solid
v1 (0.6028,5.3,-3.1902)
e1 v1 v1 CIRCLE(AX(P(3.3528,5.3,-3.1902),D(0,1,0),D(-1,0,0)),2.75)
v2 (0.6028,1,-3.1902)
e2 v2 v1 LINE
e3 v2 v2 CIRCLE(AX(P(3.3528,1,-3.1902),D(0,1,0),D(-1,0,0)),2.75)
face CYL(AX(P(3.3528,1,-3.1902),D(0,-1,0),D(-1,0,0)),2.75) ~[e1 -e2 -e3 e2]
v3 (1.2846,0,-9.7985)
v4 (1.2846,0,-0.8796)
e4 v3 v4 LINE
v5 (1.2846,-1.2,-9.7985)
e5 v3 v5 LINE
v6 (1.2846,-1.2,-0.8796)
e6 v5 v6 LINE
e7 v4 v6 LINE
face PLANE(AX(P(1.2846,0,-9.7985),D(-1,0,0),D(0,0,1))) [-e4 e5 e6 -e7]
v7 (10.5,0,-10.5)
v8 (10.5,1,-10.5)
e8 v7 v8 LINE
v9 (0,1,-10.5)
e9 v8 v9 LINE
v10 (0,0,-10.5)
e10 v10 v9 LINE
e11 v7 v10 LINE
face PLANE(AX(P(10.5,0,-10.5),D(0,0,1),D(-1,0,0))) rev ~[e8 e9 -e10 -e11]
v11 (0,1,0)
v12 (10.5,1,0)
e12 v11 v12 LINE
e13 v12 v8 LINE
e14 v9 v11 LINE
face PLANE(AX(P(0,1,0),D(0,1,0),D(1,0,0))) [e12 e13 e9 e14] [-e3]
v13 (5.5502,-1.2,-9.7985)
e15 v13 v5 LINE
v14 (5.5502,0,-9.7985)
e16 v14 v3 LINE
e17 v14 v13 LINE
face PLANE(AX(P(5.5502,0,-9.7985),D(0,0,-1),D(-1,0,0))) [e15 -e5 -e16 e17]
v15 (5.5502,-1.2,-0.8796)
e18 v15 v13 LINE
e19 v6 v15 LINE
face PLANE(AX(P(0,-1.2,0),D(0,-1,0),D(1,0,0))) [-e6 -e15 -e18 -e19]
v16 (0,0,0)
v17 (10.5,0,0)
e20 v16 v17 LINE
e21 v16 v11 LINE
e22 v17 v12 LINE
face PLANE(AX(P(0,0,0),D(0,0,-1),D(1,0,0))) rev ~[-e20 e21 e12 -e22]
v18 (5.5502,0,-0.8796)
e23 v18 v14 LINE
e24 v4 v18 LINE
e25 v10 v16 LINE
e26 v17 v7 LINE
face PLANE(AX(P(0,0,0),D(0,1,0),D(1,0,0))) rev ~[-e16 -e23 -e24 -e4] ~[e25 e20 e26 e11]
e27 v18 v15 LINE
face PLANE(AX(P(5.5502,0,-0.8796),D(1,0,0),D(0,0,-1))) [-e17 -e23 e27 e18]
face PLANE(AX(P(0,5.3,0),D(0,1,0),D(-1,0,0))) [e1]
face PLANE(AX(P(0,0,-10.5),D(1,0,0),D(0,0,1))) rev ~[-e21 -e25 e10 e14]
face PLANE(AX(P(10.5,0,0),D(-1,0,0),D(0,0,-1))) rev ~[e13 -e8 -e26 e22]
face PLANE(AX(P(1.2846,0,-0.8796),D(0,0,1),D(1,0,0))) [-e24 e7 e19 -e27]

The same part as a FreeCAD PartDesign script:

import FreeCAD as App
import Part
import Sketcher

V = App.Vector

doc = App.newDocument("Part")
body = doc.addObject("PartDesign::Body", "Body")

# Sketch on XZ plane
sketch1 = body.newObject("Sketcher::SketchObject", "Sketch")
sketch1.AttachmentSupport = (doc.getObject("XZ_Plane"), [""])
sketch1.MapMode = "FlatFace"
sketch1.addGeometry(Part.LineSegment(V(0, -10, 0), V(0, 0, 0)), False)
sketch1.addGeometry(Part.LineSegment(V(0, 0, 0), V(10, 0, 0)), False)
sketch1.addGeometry(Part.LineSegment(V(10, 0, 0), V(10, -10, 0)), False)
sketch1.addGeometry(Part.LineSegment(V(10, -10, 0), V(0, -10, 0)), False)
sketch1.addConstraint(Sketcher.Constraint("Coincident", 0, 2, 1, 1))
sketch1.addConstraint(Sketcher.Constraint("Coincident", 1, 2, 2, 1))
sketch1.addConstraint(Sketcher.Constraint("Coincident", 2, 2, 3, 1))
sketch1.addConstraint(Sketcher.Constraint("Coincident", 3, 2, 0, 1))
sketch1.addConstraint(Sketcher.Constraint("Vertical", 0))
sketch1.addConstraint(Sketcher.Constraint("Horizontal", 1))
sketch1.addConstraint(Sketcher.Constraint("Vertical", 2))
sketch1.addConstraint(Sketcher.Constraint("Horizontal", 3))
sketch1.addConstraint(Sketcher.Constraint("Coincident", 0, 2, -1, 1))
sketch1.addConstraint(Sketcher.Constraint("Equal", 3, 0))
sketch1.addConstraint(Sketcher.Constraint("DistanceX", 1, 1, 1, 2, 10.5))
pad1 = body.newObject("PartDesign::Pad", "Pad")
pad1.Profile = sketch1
pad1.Length = 1
pad1.Reversed = True

# Sketch on XZ plane
sketch2 = body.newObject("Sketcher::SketchObject", "Sketch001")
sketch2.AttachmentSupport = (doc.getObject("XZ_Plane"), [""])
sketch2.MapMode = "FlatFace"
sketch2.AttachmentOffset = App.Placement(V(0, 0, -1), App.Rotation())
sketch2.addGeometry(Part.Circle(V(3.4, -3.2, 0), V(0, 0, 1), 2.8), False)
sketch2.addConstraint(Sketcher.Constraint("Diameter", 0, 5.5))
sketch2.addConstraint(Sketcher.Constraint("DistanceX", -1, 1, 0, 3, 3.3528))
sketch2.addConstraint(Sketcher.Constraint("DistanceY", 0, 3, -1, 1, 3.1902))
pad2 = body.newObject("PartDesign::Pad", "Pad001")
pad2.Profile = sketch2
pad2.Length = 4.3
pad2.Reversed = True

# Sketch on XZ plane
sketch3 = body.newObject("Sketcher::SketchObject", "Sketch002")
sketch3.AttachmentSupport = (doc.getObject("XZ_Plane"), [""])
sketch3.MapMode = "FlatFace"
sketch3.addGeometry(Part.LineSegment(V(5.6, -0.9, 0), V(1.3, -0.9, 0)), False)
sketch3.addGeometry(Part.LineSegment(V(1.3, -0.9, 0), V(1.3, -9.8, 0)), False)
sketch3.addGeometry(Part.LineSegment(V(1.3, -9.8, 0), V(5.6, -9.8, 0)), False)
sketch3.addGeometry(Part.LineSegment(V(5.6, -9.8, 0), V(5.6, -0.9, 0)), False)
sketch3.addConstraint(Sketcher.Constraint("Coincident", 0, 2, 1, 1))
sketch3.addConstraint(Sketcher.Constraint("Coincident", 1, 2, 2, 1))
sketch3.addConstraint(Sketcher.Constraint("Coincident", 2, 2, 3, 1))
sketch3.addConstraint(Sketcher.Constraint("Coincident", 3, 2, 0, 1))
sketch3.addConstraint(Sketcher.Constraint("Horizontal", 0))
sketch3.addConstraint(Sketcher.Constraint("Vertical", 1))
sketch3.addConstraint(Sketcher.Constraint("Horizontal", 2))
sketch3.addConstraint(Sketcher.Constraint("Vertical", 3))
sketch3.addConstraint(Sketcher.Constraint("DistanceY", 1, 2, 1, 1, 8.919))
sketch3.addConstraint(Sketcher.Constraint("DistanceX", 0, 2, 0, 1, 4.2656))
sketch3.addConstraint(Sketcher.Constraint("DistanceX", -1, 1, 0, 2, 1.2846))
sketch3.addConstraint(Sketcher.Constraint("DistanceY", 0, 2, -1, 1, 0.8796))
pad3 = body.newObject("PartDesign::Pad", "Pad002")
pad3.Profile = sketch3
pad3.Length = 1.2

doc.recompute()
